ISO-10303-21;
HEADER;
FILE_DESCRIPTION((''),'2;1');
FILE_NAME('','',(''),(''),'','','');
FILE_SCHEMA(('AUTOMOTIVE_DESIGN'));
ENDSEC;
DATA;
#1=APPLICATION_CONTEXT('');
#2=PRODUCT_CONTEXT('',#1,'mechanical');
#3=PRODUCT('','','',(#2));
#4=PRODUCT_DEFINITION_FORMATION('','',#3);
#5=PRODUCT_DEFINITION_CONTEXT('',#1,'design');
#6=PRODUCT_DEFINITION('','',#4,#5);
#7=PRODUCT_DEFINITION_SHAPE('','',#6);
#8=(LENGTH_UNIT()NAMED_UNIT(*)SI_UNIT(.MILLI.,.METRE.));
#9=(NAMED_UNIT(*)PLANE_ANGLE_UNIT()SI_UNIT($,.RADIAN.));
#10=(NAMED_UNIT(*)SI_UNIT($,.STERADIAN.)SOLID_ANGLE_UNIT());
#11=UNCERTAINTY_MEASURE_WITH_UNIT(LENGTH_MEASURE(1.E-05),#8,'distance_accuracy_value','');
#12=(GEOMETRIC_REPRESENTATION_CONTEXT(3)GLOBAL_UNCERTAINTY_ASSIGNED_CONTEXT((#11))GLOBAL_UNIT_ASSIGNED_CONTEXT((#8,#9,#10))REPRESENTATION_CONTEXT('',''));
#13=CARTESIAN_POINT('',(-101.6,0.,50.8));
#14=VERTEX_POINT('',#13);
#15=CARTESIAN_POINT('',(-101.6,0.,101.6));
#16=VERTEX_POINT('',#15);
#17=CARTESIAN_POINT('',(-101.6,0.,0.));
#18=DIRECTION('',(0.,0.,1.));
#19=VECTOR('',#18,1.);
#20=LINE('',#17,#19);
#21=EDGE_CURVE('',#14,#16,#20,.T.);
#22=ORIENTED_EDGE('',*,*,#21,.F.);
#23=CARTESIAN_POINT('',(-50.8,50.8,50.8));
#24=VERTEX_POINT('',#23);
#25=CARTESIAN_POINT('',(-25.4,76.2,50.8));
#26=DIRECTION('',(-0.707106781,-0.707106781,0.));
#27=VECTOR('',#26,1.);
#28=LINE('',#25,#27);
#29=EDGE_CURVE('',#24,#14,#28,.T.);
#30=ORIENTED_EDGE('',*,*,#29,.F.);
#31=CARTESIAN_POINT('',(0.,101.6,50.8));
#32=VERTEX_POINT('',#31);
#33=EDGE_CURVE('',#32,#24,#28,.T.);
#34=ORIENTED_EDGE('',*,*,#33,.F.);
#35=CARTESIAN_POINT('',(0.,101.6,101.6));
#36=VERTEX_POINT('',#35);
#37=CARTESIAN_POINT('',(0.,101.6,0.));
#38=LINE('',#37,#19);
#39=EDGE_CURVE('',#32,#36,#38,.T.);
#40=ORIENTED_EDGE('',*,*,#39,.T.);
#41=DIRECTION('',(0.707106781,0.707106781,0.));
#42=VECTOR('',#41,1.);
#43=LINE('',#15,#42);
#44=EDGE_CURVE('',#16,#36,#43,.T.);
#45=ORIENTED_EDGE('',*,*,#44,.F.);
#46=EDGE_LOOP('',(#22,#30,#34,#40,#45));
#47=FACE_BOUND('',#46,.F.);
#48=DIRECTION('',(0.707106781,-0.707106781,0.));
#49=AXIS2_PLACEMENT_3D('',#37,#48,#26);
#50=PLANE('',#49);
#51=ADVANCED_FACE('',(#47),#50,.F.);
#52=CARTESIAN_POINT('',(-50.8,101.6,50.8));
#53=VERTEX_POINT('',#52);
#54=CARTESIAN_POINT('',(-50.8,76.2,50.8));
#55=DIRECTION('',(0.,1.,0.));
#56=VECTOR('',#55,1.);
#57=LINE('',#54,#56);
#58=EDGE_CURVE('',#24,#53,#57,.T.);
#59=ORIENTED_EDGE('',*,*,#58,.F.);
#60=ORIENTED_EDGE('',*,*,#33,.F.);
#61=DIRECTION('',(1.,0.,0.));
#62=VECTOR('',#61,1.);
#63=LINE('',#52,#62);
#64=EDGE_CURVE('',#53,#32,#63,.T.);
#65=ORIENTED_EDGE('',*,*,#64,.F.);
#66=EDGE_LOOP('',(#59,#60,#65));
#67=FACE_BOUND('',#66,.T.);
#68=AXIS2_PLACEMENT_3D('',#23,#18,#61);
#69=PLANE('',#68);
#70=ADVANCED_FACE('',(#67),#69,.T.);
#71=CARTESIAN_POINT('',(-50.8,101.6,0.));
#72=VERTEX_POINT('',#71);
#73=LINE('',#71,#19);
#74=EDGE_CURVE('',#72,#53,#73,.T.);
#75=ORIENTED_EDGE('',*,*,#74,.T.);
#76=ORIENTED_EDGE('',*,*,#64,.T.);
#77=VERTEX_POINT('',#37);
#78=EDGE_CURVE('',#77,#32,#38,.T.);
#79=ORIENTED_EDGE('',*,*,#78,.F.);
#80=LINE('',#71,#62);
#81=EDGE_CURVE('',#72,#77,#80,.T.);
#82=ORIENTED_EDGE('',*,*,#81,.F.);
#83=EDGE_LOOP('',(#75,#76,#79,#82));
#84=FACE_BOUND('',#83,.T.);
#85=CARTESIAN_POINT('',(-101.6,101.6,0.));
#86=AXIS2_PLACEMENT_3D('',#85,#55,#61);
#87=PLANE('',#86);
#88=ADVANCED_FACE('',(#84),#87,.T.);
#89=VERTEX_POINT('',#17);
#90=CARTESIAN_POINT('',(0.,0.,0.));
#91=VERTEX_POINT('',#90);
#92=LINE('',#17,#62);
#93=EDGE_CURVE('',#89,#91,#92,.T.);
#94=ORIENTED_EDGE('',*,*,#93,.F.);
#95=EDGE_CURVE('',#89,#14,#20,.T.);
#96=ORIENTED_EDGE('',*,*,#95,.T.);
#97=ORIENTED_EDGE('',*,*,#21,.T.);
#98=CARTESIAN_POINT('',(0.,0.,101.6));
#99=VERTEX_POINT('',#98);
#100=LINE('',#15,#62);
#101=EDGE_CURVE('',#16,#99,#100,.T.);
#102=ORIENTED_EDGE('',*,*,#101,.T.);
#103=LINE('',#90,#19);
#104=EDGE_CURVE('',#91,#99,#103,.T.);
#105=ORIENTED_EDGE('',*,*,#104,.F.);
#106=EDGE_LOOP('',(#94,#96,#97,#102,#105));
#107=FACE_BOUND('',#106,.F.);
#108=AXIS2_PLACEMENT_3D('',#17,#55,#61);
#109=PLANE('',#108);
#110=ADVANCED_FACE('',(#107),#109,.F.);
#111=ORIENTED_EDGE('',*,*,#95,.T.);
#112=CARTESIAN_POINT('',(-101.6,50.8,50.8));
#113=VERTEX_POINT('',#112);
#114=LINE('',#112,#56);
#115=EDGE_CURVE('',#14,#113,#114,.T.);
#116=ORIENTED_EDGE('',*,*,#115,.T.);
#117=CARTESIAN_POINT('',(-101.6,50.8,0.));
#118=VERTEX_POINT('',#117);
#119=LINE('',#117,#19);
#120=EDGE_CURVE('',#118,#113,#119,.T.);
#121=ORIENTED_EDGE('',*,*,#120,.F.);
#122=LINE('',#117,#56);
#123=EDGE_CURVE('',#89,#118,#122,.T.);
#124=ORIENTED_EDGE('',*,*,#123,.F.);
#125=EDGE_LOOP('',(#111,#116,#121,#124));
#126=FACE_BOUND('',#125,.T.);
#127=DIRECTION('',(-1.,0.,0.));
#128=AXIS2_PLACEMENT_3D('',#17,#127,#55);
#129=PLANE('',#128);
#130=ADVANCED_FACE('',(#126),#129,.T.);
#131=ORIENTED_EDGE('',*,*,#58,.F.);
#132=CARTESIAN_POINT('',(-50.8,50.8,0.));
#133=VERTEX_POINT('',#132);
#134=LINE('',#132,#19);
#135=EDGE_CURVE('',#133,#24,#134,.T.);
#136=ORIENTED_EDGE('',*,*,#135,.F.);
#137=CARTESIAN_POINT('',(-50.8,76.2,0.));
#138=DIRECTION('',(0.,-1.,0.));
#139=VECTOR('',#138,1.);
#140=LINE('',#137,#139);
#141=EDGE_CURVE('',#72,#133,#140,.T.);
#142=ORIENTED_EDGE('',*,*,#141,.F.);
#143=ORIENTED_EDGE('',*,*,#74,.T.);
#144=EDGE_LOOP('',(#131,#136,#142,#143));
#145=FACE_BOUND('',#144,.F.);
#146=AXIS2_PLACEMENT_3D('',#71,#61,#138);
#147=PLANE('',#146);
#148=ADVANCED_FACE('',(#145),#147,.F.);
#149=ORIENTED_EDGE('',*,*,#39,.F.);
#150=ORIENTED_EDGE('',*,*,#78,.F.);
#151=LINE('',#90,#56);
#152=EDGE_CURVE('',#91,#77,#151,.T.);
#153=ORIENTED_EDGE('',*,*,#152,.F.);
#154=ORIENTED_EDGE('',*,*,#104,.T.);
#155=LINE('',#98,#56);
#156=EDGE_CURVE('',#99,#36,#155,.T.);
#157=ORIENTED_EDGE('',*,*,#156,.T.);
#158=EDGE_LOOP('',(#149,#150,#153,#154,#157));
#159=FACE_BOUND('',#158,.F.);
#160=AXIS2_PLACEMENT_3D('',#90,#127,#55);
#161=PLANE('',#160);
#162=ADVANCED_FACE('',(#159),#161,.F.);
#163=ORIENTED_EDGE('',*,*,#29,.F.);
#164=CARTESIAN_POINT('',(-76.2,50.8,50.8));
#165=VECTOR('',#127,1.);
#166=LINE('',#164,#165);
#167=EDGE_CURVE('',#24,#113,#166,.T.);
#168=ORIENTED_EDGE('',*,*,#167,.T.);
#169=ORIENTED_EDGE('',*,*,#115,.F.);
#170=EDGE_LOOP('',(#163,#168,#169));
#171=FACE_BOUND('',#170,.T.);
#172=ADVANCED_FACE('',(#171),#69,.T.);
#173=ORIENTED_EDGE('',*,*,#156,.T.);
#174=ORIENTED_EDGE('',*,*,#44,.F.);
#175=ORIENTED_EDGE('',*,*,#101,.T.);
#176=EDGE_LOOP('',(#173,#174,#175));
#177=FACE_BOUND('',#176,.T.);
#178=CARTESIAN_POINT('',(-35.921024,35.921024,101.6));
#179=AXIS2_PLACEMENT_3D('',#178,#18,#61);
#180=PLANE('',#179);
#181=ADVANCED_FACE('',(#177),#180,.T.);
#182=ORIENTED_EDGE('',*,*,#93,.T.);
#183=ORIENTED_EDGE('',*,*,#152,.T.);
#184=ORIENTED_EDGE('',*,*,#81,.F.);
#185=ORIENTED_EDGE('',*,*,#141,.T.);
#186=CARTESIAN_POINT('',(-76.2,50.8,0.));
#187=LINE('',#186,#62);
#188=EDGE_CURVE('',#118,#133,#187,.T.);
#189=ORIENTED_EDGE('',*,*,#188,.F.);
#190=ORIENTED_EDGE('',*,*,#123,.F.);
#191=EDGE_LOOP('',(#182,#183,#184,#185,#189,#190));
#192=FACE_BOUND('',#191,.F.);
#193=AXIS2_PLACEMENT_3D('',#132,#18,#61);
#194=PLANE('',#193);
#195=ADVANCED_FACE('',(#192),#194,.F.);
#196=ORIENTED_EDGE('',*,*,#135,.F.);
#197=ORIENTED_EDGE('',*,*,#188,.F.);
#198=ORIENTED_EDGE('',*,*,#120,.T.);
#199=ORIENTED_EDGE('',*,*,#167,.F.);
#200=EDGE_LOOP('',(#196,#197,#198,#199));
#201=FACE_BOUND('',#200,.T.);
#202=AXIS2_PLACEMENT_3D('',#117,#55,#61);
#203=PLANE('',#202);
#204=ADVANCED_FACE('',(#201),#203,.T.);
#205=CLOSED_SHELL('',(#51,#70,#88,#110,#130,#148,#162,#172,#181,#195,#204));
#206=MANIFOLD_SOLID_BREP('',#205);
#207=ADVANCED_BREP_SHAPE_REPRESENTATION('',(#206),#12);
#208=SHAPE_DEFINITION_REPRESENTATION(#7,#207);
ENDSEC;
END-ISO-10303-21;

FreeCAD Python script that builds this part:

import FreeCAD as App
import Part
import Sketcher

V = App.Vector
Q = App.Units.Quantity


def add_polygon(sketch, points):
    """Adds a closed chain of lines whose ends are joined by coincident constraints."""
    first, n = sketch.GeometryCount, len(points)
    for a, b in zip(points, points[1:] + points[:1]):
        sketch.addGeometry(Part.LineSegment(App.Vector(*a, 0), App.Vector(*b, 0)), False)
    for i in range(n):
        sketch.addConstraint(Sketcher.Constraint("Coincident", first + i, 2, first + (i + 1) % n, 1))

doc = App.newDocument("Part")
body = doc.addObject("PartDesign::Body", "Body")

# Sketch on XY plane
sketch1 = doc.addObject("Sketcher::SketchObject", "Sketch")
body.addObject(sketch1)
sketch1.AttachmentSupport = (doc.XY_Plane, [""])
sketch1.MapMode = "FlatFace"
add_polygon(sketch1, [(-102, 0), (0, 0), (0, 102)])  # lines 0-2
sketch1.addConstraint([
    Sketcher.Constraint("Horizontal", 0),
    Sketcher.Constraint("Vertical", 1),
    Sketcher.Constraint("Coincident", 0, 2, -1, 1),
    Sketcher.Constraint("Equal", 0, 1),
    Sketcher.Constraint("DistanceX", 0, 1, 0, 2, Q("4 in")),
])
pad1 = doc.addObject("PartDesign::Pad", "Pad")
body.addObject(pad1)
pad1.Profile = sketch1
pad1.Length = Q("4 in")

# Sketch on XY plane
sketch2 = doc.addObject("Sketcher::SketchObject", "Sketch001")
body.addObject(sketch2)
sketch2.AttachmentSupport = (doc.XY_Plane, [""])
sketch2.MapMode = "FlatFace"
add_polygon(sketch2, [(-102, 102), (-102, 0), (0, 0), (0, 102)])  # lines 0-3
sketch2.addConstraint([
    Sketcher.Constraint("Vertical", 0),
    Sketcher.Constraint("Horizontal", 1),
    Sketcher.Constraint("Vertical", 2),
    Sketcher.Constraint("Horizontal", 3),
    Sketcher.Constraint("Coincident", 1, 2, -1, 1),
    Sketcher.Constraint("Equal", 3, 0),
    Sketcher.Constraint("DistanceX", 1, 1, 1, 2, Q("4 in")),
])
pad2 = doc.addObject("PartDesign::Pad", "Pad001")
body.addObject(pad2)
pad2.Profile = sketch2
pad2.Length = Q("2 in")

# Sketch on XY plane
sketch3 = doc.addObject("Sketcher::SketchObject", "Sketch002")
body.addObject(sketch3)
sketch3.AttachmentSupport = (doc.XY_Plane, [""])
sketch3.MapMode = "FlatFace"
add_polygon(sketch3, [(-102, 51), (-102, 102), (-51, 102), (-51, 51)])  # lines 0-3
sketch3.addConstraint([
    Sketcher.Constraint("Vertical", 0),
    Sketcher.Constraint("Horizontal", 1),
    Sketcher.Constraint("Vertical", 2),
    Sketcher.Constraint("Horizontal", 3),
    Sketcher.Constraint("Equal", 3, 0),
    Sketcher.Constraint("DistanceX", 1, 1, 1, 2, Q("2 in")),
    Sketcher.Constraint("DistanceX", 0, 2, -1, 1, Q("4 in")),
    Sketcher.Constraint("DistanceY", -1, 1, 0, 2, Q("4 in")),
])
pocket1 = doc.addObject("PartDesign::Pocket", "Pocket")
body.addObject(pocket1)
pocket1.Profile = sketch3
pocket1.Type = "ThroughAll"
pocket1.Reversed = True

doc.recompute()
